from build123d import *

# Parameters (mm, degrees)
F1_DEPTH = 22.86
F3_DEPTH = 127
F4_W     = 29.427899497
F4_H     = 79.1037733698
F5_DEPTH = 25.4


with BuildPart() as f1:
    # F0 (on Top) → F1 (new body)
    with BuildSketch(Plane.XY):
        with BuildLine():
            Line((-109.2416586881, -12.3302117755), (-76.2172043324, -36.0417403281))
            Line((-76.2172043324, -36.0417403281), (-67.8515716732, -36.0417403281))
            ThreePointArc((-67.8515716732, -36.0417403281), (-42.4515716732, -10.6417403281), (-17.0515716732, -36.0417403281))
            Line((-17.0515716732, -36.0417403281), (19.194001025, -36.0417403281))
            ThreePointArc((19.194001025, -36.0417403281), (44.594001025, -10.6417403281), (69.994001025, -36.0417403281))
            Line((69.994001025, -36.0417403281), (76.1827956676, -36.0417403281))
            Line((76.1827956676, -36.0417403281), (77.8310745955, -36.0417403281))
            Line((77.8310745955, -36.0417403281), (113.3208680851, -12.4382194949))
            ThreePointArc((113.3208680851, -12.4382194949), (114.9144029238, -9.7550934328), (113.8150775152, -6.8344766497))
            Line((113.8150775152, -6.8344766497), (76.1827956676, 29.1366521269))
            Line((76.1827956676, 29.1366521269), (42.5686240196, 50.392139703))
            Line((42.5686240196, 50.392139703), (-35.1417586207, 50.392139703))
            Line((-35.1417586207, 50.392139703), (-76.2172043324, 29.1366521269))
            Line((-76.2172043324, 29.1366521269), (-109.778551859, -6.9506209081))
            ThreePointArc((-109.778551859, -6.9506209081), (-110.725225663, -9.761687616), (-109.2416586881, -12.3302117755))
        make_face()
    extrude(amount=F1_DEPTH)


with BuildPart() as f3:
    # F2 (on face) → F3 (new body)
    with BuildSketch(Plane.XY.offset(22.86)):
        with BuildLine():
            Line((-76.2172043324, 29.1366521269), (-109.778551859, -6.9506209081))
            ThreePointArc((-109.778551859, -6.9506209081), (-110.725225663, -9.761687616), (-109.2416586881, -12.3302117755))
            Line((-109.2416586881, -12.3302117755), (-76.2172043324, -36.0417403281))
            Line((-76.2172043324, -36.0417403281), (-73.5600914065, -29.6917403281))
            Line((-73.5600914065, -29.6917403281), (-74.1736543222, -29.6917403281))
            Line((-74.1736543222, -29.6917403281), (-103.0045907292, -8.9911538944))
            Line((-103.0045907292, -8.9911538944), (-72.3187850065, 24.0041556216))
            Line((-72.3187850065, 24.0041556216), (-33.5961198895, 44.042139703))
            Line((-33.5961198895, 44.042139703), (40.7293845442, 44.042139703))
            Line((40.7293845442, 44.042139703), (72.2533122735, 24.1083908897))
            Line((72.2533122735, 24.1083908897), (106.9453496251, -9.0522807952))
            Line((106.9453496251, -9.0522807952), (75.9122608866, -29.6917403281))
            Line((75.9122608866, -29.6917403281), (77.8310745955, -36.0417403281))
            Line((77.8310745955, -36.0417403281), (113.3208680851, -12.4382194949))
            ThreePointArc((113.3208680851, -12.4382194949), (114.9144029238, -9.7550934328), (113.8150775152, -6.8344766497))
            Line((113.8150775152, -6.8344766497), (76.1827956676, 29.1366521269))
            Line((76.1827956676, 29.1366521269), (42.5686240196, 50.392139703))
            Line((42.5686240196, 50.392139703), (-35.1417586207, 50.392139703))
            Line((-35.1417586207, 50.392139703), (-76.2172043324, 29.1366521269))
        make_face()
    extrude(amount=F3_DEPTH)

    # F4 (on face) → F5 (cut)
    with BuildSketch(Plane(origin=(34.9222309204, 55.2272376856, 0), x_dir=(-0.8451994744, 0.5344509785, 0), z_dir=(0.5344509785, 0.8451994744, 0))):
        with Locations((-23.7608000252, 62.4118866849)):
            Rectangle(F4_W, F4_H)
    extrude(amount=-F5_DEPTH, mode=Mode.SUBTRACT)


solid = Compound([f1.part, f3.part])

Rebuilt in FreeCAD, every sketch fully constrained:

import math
import FreeCAD as App
import Part
import Sketcher
Q = App.Units.Quantity

doc = App.newDocument("Part")
body = doc.addObject("PartDesign::Body", "Body")

# Sketch on XY plane
sketch1 = body.newObject("Sketcher::SketchObject", "Sketch")
sketch1.AttachmentSupport = (doc.getObject("XY_Plane"), [""])
sketch1.MapMode = "FlatFace"
sketch1.addGeometry([
    Part.LineSegment(App.Vector(-109.2, -12.3, 0), App.Vector(-76.2, -36, 0)),  # 0
    Part.LineSegment(App.Vector(-76.2, -36, 0), App.Vector(-67.9, -36, 0)),  # 1
    Part.ArcOfCircle(Part.Circle(App.Vector(-42.5, -36, 0), App.Vector(0, 0, 1), 25.4), math.radians(0), math.radians(180)),  # 2
    Part.LineSegment(App.Vector(-17.1, -36, 0), App.Vector(19.2, -36, 0)),  # 3
    Part.ArcOfCircle(Part.Circle(App.Vector(44.6, -36, 0), App.Vector(0, 0, 1), 25.4), math.radians(0), math.radians(180)),  # 4
    Part.LineSegment(App.Vector(70, -36, 0), App.Vector(77.8, -36, 0)),  # 5
    Part.LineSegment(App.Vector(77.8, -36, 0), App.Vector(113.3, -12.4, 0)),  # 6
    Part.ArcOfCircle(Part.Circle(App.Vector(111.3, -9.4, 0), App.Vector(0, 0, 1), 3.6), math.radians(-56), math.radians(46)),  # 7
    Part.LineSegment(App.Vector(113.8, -6.8, 0), App.Vector(76.2, 29.1, 0)),  # 8
    Part.LineSegment(App.Vector(76.2, 29.1, 0), App.Vector(42.6, 50.4, 0)),  # 9
    Part.LineSegment(App.Vector(42.6, 50.4, 0), App.Vector(-35.1, 50.4, 0)),  # 10
    Part.LineSegment(App.Vector(-35.1, 50.4, 0), App.Vector(-76.2, 29.1, 0)),  # 11
    Part.LineSegment(App.Vector(-76.2, 29.1, 0), App.Vector(-109.8, -7, 0)),  # 12
    Part.ArcOfCircle(Part.Circle(App.Vector(-107.1, -9.4, 0), App.Vector(0, 0, 1), 3.6), math.radians(137), math.radians(234)),  # 13
], False)
sketch1.addConstraint([
    Sketcher.Constraint("Coincident", 0, 2, 1, 1),
    Sketcher.Constraint("Coincident", 1, 2, 2, 2),
    Sketcher.Constraint("Coincident", 2, 1, 3, 1),
    Sketcher.Constraint("Coincident", 3, 2, 4, 2),
    Sketcher.Constraint("Coincident", 4, 1, 5, 1),
    Sketcher.Constraint("Coincident", 5, 2, 6, 1),
    Sketcher.Constraint("Tangent", 6, 2, 7, 1),
    Sketcher.Constraint("Tangent", 7, 2, 8, 1),
    Sketcher.Constraint("Coincident", 8, 2, 9, 1),
    Sketcher.Constraint("Coincident", 9, 2, 10, 1),
    Sketcher.Constraint("Coincident", 10, 2, 11, 1),
    Sketcher.Constraint("Coincident", 11, 2, 12, 1),
    Sketcher.Constraint("Tangent", 12, 2, 13, 1),
    Sketcher.Constraint("Tangent", 13, 2, 0, 1),
    Sketcher.Constraint("Horizontal", 1),
    Sketcher.Constraint("Horizontal", 3),
    Sketcher.Constraint("Horizontal", 5),
    Sketcher.Constraint("Horizontal", 10),
    Sketcher.Constraint("Equal", 2, 4),
    Sketcher.Constraint("Equal", 7, 13),
    Sketcher.Constraint("Horizontal", 2, 3, 4, 3),
    Sketcher.Constraint("Horizontal", 4, 3, 0, 2),
    Sketcher.Constraint("Horizontal", 1, 2, 2, 1),
    Sketcher.Constraint("Horizontal", 3, 2, 4, 1),
    Sketcher.Constraint("Horizontal", 8, 2, 11, 2),
    Sketcher.Constraint("Vertical", 0, 2, 11, 2),
    Sketcher.Constraint("Radius", 2, Q("1 in")),
    Sketcher.Constraint("Radius", 7, 3.602439),
    Sketcher.Constraint("DistanceX", 13, 3, 10, 2, Q("2.8345998 in")),
    Sketcher.Constraint("DistanceX", -1, 1, 4, 3, 44.594001),
    Sketcher.Constraint("Distance", 12, 49.281389),
    Sketcher.Constraint("DistanceX", 1, 1, 1, 2, 8.365633),
    Sketcher.Constraint("DistanceX", 3, 1, 3, 2, 36.245573),
    Sketcher.Constraint("DistanceX", 5, 1, 5, 2, 7.837074),
    Sketcher.Constraint("DistanceX", 10, 2, 10, 1, 77.710383),
    Sketcher.Constraint("DistanceY", 2, 3, -1, 1, 36.04174),
    Sketcher.Constraint("DistanceX", -1, 1, 6, 2, 113.320868),
    Sketcher.Constraint("DistanceY", 6, 2, -1, 1, 12.438219),
    Sketcher.Constraint("DistanceY", -1, 1, 9, 2, 50.39214),
    Sketcher.Constraint("DistanceX", 10, 2, -1, 1, 35.141759),
    Sketcher.Constraint("DistanceY", 12, 2, -1, 1, 6.950621),
    Sketcher.Constraint("DistanceX", 6, 2, 7, 2, 0.494209),
])
pad1 = body.newObject("PartDesign::Pad", "Pad")
pad1.Profile = sketch1
pad1.Length = Q("0.9 in")
body2 = doc.addObject("PartDesign::Body", "Body001")

# Sketch on XY plane
sketch2 = body2.newObject("Sketcher::SketchObject", "Sketch001")
sketch2.AttachmentSupport = (doc.getObject("XY_Plane001"), [""])
sketch2.MapMode = "FlatFace"
sketch2.AttachmentOffset = App.Placement(App.Vector(0, 0, 0.9 * 25.4), App.Rotation())
sketch2.addGeometry([
    Part.LineSegment(App.Vector(-76.2, 29.1, 0), App.Vector(-109.8, -7, 0)),  # 0
    Part.ArcOfCircle(Part.Circle(App.Vector(-107.1, -9.4, 0), App.Vector(0, 0, 1), 3.6), math.radians(137), math.radians(234)),  # 1
    Part.LineSegment(App.Vector(-109.2, -12.3, 0), App.Vector(-76.2, -36, 0)),  # 2
    Part.LineSegment(App.Vector(-76.2, -36, 0), App.Vector(-73.6, -29.7, 0)),  # 3
    Part.LineSegment(App.Vector(-73.6, -29.7, 0), App.Vector(-74.2, -29.7, 0)),  # 4
    Part.LineSegment(App.Vector(-74.2, -29.7, 0), App.Vector(-103, -9, 0)),  # 5
    Part.LineSegment(App.Vector(-103, -9, 0), App.Vector(-72.3, 24, 0)),  # 6
    Part.LineSegment(App.Vector(-72.3, 24, 0), App.Vector(-33.6, 44, 0)),  # 7
    Part.LineSegment(App.Vector(-33.6, 44, 0), App.Vector(40.7, 44, 0)),  # 8
    Part.LineSegment(App.Vector(40.7, 44, 0), App.Vector(72.3, 24.1, 0)),  # 9
    Part.LineSegment(App.Vector(72.3, 24.1, 0), App.Vector(106.9, -9.1, 0)),  # 10
    Part.LineSegment(App.Vector(106.9, -9.1, 0), App.Vector(75.9, -29.7, 0)),  # 11
    Part.LineSegment(App.Vector(75.9, -29.7, 0), App.Vector(77.8, -36, 0)),  # 12
    Part.LineSegment(App.Vector(77.8, -36, 0), App.Vector(113.3, -12.4, 0)),  # 13
    Part.ArcOfCircle(Part.Circle(App.Vector(111.3, -9.4, 0), App.Vector(0, 0, 1), 3.6), math.radians(-56), math.radians(46)),  # 14
    Part.LineSegment(App.Vector(113.8, -6.8, 0), App.Vector(76.2, 29.1, 0)),  # 15
    Part.LineSegment(App.Vector(76.2, 29.1, 0), App.Vector(42.6, 50.4, 0)),  # 16
    Part.LineSegment(App.Vector(42.6, 50.4, 0), App.Vector(-35.1, 50.4, 0)),  # 17
    Part.LineSegment(App.Vector(-35.1, 50.4, 0), App.Vector(-76.2, 29.1, 0)),  # 18
], False)
sketch2.addConstraint([
    Sketcher.Constraint("Tangent", 0, 2, 1, 1),
    Sketcher.Constraint("Tangent", 1, 2, 2, 1),
    Sketcher.Constraint("Coincident", 2, 2, 3, 1),
    Sketcher.Constraint("Coincident", 3, 2, 4, 1),
    Sketcher.Constraint("Coincident", 4, 2, 5, 1),
    Sketcher.Constraint("Coincident", 5, 2, 6, 1),
    Sketcher.Constraint("Coincident", 6, 2, 7, 1),
    Sketcher.Constraint("Coincident", 7, 2, 8, 1),
    Sketcher.Constraint("Coincident", 8, 2, 9, 1),
    Sketcher.Constraint("Coincident", 9, 2, 10, 1),
    Sketcher.Constraint("Coincident", 10, 2, 11, 1),
    Sketcher.Constraint("Coincident", 11, 2, 12, 1),
    Sketcher.Constraint("Coincident", 12, 2, 13, 1),
    Sketcher.Constraint("Tangent", 13, 2, 14, 1),
    Sketcher.Constraint("Tangent", 14, 2, 15, 1),
    Sketcher.Constraint("Coincident", 15, 2, 16, 1),
    Sketcher.Constraint("Coincident", 16, 2, 17, 1),
    Sketcher.Constraint("Coincident", 17, 2, 18, 1),
    Sketcher.Constraint("Coincident", 18, 2, 0, 1),
    Sketcher.Constraint("Horizontal", 4),
    Sketcher.Constraint("Horizontal", 8),
    Sketcher.Constraint("Horizontal", 17),
    Sketcher.Constraint("Equal", 1, 14),
    Sketcher.Constraint("Parallel", 2, 5),
    Sketcher.Constraint("Parallel", 0, 6),
    Sketcher.Constraint("Parallel", 11, 13),
    Sketcher.Constraint("Parallel", 10, 15),
    Sketcher.Constraint("Parallel", 9, 16),
    Sketcher.Constraint("Parallel", 7, 18),
    Sketcher.Constraint("Horizontal", 4, 2, 11, 2),
    Sketcher.Constraint("Horizontal", 2, 2, 12, 2),
    Sketcher.Constraint("Horizontal", 15, 2, 18, 2),
    Sketcher.Constraint("Vertical", 2, 2, 18, 2),
    Sketcher.Constraint("DistanceY", 2, 2, 3, 2, Q("0.25 in")),
    Sketcher.Constraint("DistanceY", 8, 2, 16, 2, Q("0.25 in")),
    Sketcher.Constraint("Radius", 1, 3.602439),
    Sketcher.Constraint("DistanceY", 1, 2, 14, 3, 2.891599),
    Sketcher.Constraint("DistanceX", 5, 2, 3, 2, 29.444499),
    Sketcher.Constraint("Distance", 0, 49.281389),
    Sketcher.Constraint("Distance", 6, 45.058952),
    Sketcher.Constraint("Distance", 9, 37.297619),
    Sketcher.Constraint("Distance", 10, 47.991328),
    Sketcher.Constraint("DistanceX", 4, 2, 4, 1, 0.613563),
    Sketcher.Constraint("DistanceX", 8, 1, 8, 2, 74.325504),
    Sketcher.Constraint("DistanceX", 17, 2, 17, 1, 77.710383),
    Sketcher.Constraint("DistanceX", 0, 2, -1, 1, 109.778552),
    Sketcher.Constraint("DistanceY", 0, 2, -1, 1, 6.950621),
    Sketcher.Constraint("DistanceX", 1, 2, -1, 1, 109.241659),
    Sketcher.Constraint("DistanceY", 1, 2, -1, 1, 12.330212),
    Sketcher.Constraint("DistanceX", 3, 2, -1, 1, 73.560091),
    Sketcher.Constraint("DistanceX", 7, 2, -1, 1, 33.59612),
    Sketcher.Constraint("DistanceY", -1, 1, 7, 2, 44.04214),
    Sketcher.Constraint("DistanceY", -1, 1, 9, 2, 24.108391),
    Sketcher.Constraint("DistanceX", -1, 1, 10, 2, 106.94535),
    Sketcher.Constraint("DistanceX", -1, 1, 11, 2, 75.912261),
])
pad2 = body2.newObject("PartDesign::Pad", "Pad001")
pad2.Profile = sketch2
pad2.Length = Q("5 in")

# Sketch on an angled plane
sketch3 = body2.newObject("Sketcher::SketchObject", "Sketch002")
sketch3.Placement = App.Placement(App.Vector(34.922231, 55.227238, 0), App.Rotation(App.Vector(-0.845199474, 0.534450979, 0), App.Vector(0, 0, 1), App.Vector(0.534450979, 0.845199474, 0), "ZXY"))
sketch3.addGeometry([
    Part.LineSegment(App.Vector(-38, 102, 0), App.Vector(-38, 23, 0)),
    Part.LineSegment(App.Vector(-38, 23, 0), App.Vector(-9, 23, 0)),
    Part.LineSegment(App.Vector(-9, 23, 0), App.Vector(-9, 102, 0)),
    Part.LineSegment(App.Vector(-9, 102, 0), App.Vector(-38, 102, 0)),
], False)
sketch3.addConstraint([
    Sketcher.Constraint("Coincident", 0, 2, 1, 1),
    Sketcher.Constraint("Coincident", 1, 2, 2, 1),
    Sketcher.Constraint("Coincident", 2, 2, 3, 1),
    Sketcher.Constraint("Coincident", 3, 2, 0, 1),
    Sketcher.Constraint("Vertical", 0),
    Sketcher.Constraint("Horizontal", 1),
    Sketcher.Constraint("Vertical", 2),
    Sketcher.Constraint("Horizontal", 3),
    Sketcher.Constraint("DistanceY", -1, 1, 0, 2, Q("0.9 in")),
    Sketcher.Constraint("DistanceX", 1, 1, 1, 2, 29.427899),
    Sketcher.Constraint("DistanceY", 0, 2, 0, 1, 79.103773),
    Sketcher.Constraint("DistanceX", 0, 2, -1, 1, 38.47475),
])
pocket1 = body2.newObject("PartDesign::Pocket", "Pocket")
pocket1.Profile = sketch3
pocket1.Length = Q("1 in")

doc.recompute()
